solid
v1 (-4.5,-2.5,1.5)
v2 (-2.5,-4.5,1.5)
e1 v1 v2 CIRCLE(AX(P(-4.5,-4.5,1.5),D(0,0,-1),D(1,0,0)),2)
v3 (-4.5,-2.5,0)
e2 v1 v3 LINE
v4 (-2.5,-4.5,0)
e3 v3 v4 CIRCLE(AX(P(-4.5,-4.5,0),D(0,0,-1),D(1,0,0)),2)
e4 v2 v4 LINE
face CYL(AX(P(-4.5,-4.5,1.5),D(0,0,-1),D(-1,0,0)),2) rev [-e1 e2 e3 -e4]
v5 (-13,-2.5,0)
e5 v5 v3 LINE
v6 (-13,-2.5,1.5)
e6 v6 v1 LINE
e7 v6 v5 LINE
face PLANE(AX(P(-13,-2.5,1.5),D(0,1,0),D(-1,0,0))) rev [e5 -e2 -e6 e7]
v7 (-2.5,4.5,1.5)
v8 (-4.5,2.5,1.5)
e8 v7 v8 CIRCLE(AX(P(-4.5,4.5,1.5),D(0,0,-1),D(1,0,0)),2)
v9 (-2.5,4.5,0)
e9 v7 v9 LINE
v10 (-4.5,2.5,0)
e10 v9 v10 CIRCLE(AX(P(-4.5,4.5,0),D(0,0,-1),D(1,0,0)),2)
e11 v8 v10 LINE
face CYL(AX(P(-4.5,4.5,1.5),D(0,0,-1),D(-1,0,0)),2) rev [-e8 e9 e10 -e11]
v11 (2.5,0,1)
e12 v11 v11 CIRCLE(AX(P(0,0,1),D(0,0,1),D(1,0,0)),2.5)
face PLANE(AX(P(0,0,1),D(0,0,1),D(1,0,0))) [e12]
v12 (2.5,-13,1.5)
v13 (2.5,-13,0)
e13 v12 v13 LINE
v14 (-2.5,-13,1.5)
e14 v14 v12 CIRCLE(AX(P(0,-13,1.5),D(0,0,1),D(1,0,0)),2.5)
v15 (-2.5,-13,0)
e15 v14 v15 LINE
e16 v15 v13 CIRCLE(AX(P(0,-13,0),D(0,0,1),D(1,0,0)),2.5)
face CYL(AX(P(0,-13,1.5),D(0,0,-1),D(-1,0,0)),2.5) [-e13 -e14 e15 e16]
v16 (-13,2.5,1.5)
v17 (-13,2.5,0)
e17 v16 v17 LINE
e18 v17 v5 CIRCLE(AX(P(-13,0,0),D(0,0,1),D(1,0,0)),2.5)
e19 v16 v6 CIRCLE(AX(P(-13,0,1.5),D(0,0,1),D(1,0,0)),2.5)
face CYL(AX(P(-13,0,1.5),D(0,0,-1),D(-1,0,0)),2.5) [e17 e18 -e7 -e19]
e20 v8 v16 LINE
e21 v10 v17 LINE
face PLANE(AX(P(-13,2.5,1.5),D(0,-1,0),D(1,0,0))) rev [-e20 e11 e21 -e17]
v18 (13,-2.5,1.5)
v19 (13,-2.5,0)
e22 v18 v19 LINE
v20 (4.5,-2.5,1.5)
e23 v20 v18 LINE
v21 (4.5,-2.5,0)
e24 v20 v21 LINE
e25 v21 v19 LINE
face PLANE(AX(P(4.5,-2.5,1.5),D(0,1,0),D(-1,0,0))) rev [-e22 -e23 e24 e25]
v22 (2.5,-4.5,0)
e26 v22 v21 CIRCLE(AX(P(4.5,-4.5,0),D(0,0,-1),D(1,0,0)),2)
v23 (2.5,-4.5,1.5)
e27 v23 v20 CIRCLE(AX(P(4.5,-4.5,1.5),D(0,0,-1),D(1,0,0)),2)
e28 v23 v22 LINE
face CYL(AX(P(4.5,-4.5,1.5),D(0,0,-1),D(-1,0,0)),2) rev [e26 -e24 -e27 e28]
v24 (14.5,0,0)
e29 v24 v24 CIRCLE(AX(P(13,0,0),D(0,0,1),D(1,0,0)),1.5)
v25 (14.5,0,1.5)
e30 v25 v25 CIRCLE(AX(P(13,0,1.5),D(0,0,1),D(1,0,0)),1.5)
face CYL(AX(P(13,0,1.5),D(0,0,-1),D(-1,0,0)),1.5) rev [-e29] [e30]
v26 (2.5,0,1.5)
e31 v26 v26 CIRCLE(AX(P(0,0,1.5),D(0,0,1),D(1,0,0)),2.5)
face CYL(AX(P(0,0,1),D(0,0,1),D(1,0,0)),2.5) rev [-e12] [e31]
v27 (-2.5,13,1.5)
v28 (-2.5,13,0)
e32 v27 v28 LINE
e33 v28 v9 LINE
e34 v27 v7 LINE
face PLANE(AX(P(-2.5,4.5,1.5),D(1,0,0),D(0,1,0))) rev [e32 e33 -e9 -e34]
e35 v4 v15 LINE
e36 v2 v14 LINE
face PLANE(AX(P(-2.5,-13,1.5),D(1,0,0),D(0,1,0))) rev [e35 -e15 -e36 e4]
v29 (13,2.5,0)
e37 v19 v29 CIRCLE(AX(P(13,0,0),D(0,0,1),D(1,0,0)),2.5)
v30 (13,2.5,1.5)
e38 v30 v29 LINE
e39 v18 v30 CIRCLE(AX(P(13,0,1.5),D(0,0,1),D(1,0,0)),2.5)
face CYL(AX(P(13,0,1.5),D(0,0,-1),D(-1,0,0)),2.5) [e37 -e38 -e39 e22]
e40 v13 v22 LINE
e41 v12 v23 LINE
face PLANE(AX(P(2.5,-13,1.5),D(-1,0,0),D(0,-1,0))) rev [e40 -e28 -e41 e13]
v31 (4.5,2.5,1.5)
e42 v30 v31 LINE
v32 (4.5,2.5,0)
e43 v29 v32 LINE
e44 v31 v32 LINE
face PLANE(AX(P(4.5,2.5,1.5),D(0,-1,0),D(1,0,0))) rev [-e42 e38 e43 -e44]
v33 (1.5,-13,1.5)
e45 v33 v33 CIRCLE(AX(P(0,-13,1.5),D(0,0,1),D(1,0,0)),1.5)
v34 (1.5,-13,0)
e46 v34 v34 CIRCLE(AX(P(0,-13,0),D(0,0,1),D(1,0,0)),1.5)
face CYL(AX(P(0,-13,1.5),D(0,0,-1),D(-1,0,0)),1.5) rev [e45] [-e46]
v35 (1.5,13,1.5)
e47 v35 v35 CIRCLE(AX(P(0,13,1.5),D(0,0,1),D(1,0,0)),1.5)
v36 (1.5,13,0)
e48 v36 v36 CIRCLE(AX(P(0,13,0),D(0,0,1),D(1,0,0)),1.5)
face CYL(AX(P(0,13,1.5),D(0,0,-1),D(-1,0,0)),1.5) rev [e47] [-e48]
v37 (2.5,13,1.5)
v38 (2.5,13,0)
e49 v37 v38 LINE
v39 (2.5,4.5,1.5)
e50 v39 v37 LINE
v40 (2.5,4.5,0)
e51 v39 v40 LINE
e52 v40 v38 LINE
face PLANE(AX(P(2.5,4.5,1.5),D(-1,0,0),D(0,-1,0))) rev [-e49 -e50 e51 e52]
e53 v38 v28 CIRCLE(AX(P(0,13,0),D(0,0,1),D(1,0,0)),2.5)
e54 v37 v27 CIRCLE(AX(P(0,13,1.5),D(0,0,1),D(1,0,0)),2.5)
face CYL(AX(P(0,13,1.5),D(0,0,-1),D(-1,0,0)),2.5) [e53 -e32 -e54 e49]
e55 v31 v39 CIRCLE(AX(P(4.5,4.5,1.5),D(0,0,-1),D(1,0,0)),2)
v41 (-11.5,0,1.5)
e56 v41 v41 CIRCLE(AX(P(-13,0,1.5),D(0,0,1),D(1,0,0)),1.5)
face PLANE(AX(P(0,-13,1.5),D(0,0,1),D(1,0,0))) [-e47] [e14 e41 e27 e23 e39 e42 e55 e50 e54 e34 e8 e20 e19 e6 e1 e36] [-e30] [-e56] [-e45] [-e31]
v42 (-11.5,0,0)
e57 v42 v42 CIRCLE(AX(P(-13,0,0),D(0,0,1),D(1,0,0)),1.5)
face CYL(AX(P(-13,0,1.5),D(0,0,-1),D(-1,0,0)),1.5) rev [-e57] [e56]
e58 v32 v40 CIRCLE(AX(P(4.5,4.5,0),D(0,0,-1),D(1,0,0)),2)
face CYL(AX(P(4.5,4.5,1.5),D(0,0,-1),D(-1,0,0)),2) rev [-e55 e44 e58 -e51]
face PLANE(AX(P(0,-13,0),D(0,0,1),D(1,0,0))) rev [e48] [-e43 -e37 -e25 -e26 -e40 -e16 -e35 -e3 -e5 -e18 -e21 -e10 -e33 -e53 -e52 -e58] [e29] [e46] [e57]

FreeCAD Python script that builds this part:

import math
import FreeCAD as App
import Part
import Sketcher
Q = App.Units.Quantity

doc = App.newDocument("Part")
body = doc.addObject("PartDesign::Body", "Body")

sketch1 = body.newObject("Sketcher::SketchObject", "Sketch")
sketch1.AttachmentSupport = (doc.getObject("XY_Plane"), [""])
sketch1.MapMode = "FlatFace"
sketch1.addGeometry(Part.LineSegment(App.Vector(-2.5, -4.5, 0), App.Vector(-2.5, -13, 0)), False)
sketch1.addGeometry(Part.ArcOfCircle(Part.Circle(App.Vector(0, -13, 0), App.Vector(0, 0, 1), 2.5), math.radians(180), math.radians(360)), False)
sketch1.addGeometry(Part.LineSegment(App.Vector(2.5, -13, 0), App.Vector(2.5, -4.5, 0)), False)
sketch1.addGeometry(Part.ArcOfCircle(Part.Circle(App.Vector(4.5, -4.5, 0), App.Vector(0, 0, 1), 2), math.radians(90), math.radians(180)), False)
sketch1.addGeometry(Part.LineSegment(App.Vector(4.5, -2.5, 0), App.Vector(13, -2.5, 0)), False)
sketch1.addGeometry(Part.ArcOfCircle(Part.Circle(App.Vector(13, 0, 0), App.Vector(0, 0, 1), 2.5), math.radians(-90), math.radians(90)), False)
sketch1.addGeometry(Part.LineSegment(App.Vector(13, 2.5, 0), App.Vector(4.5, 2.5, 0)), False)
sketch1.addGeometry(Part.ArcOfCircle(Part.Circle(App.Vector(4.5, 4.5, 0), App.Vector(0, 0, 1), 2), math.radians(-180), math.radians(-90)), False)
sketch1.addGeometry(Part.LineSegment(App.Vector(2.5, 4.5, 0), App.Vector(2.5, 13, 0)), False)
sketch1.addGeometry(Part.ArcOfCircle(Part.Circle(App.Vector(0, 13, 0), App.Vector(0, 0, 1), 2.5), math.radians(0), math.radians(180)), False)
sketch1.addGeometry(Part.LineSegment(App.Vector(-2.5, 13, 0), App.Vector(-2.5, 4.5, 0)), False)
sketch1.addGeometry(Part.ArcOfCircle(Part.Circle(App.Vector(-4.5, 4.5, 0), App.Vector(0, 0, 1), 2), math.radians(-90), math.radians(0)), False)
sketch1.addGeometry(Part.LineSegment(App.Vector(-4.5, 2.5, 0), App.Vector(-13, 2.5, 0)), False)
sketch1.addGeometry(Part.ArcOfCircle(Part.Circle(App.Vector(-13, 0, 0), App.Vector(0, 0, 1), 2.5), math.radians(90), math.radians(270)), False)
sketch1.addGeometry(Part.LineSegment(App.Vector(-13, -2.5, 0), App.Vector(-4.5, -2.5, 0)), False)
sketch1.addGeometry(Part.ArcOfCircle(Part.Circle(App.Vector(-4.5, -4.5, 0), App.Vector(0, 0, 1), 2), math.radians(0), math.radians(90)), False)
sketch1.addGeometry(Part.Circle(App.Vector(0, -13, 0), App.Vector(0, 0, 1), 1.5), False)
sketch1.addGeometry(Part.Circle(App.Vector(13, 0, 0), App.Vector(0, 0, 1), 1.5), False)
sketch1.addGeometry(Part.Circle(App.Vector(-13, 0, 0), App.Vector(0, 0, 1), 1.5), False)
sketch1.addGeometry(Part.Circle(App.Vector(0, 13, 0), App.Vector(0, 0, 1), 1.5), False)
sketch1.addConstraint(Sketcher.Constraint("Tangent", 0, 2, 1, 1))
sketch1.addConstraint(Sketcher.Constraint("Tangent", 1, 2, 2, 1))
sketch1.addConstraint(Sketcher.Constraint("Tangent", 2, 2, 3, 2))
sketch1.addConstraint(Sketcher.Constraint("Tangent", 3, 1, 4, 1))
sketch1.addConstraint(Sketcher.Constraint("Tangent", 4, 2, 5, 1))
sketch1.addConstraint(Sketcher.Constraint("Tangent", 5, 2, 6, 1))
sketch1.addConstraint(Sketcher.Constraint("Tangent", 6, 2, 7, 2))
sketch1.addConstraint(Sketcher.Constraint("Tangent", 7, 1, 8, 1))
sketch1.addConstraint(Sketcher.Constraint("Tangent", 8, 2, 9, 1))
sketch1.addConstraint(Sketcher.Constraint("Tangent", 9, 2, 10, 1))
sketch1.addConstraint(Sketcher.Constraint("Tangent", 10, 2, 11, 2))
sketch1.addConstraint(Sketcher.Constraint("Tangent", 11, 1, 12, 1))
sketch1.addConstraint(Sketcher.Constraint("Tangent", 12, 2, 13, 1))
sketch1.addConstraint(Sketcher.Constraint("Tangent", 13, 2, 14, 1))
sketch1.addConstraint(Sketcher.Constraint("Tangent", 14, 2, 15, 2))
sketch1.addConstraint(Sketcher.Constraint("Tangent", 15, 1, 0, 1))
sketch1.addConstraint(Sketcher.Constraint("Vertical", 0))
sketch1.addConstraint(Sketcher.Constraint("Vertical", 2))
sketch1.addConstraint(Sketcher.Constraint("Horizontal", 4))
sketch1.addConstraint(Sketcher.Constraint("Horizontal", 6))
sketch1.addConstraint(Sketcher.Constraint("Vertical", 8))
sketch1.addConstraint(Sketcher.Constraint("Vertical", 10))
sketch1.addConstraint(Sketcher.Constraint("Horizontal", 12))
sketch1.addConstraint(Sketcher.Constraint("Horizontal", 14))
sketch1.addConstraint(Sketcher.Constraint("Coincident", 16, 3, 1, 3))
sketch1.addConstraint(Sketcher.Constraint("Coincident", 17, 3, 5, 3))
sketch1.addConstraint(Sketcher.Constraint("Coincident", 18, 3, 13, 3))
sketch1.addConstraint(Sketcher.Constraint("Coincident", 19, 3, 9, 3))
sketch1.addConstraint(Sketcher.Constraint("Equal", 1, 5))
sketch1.addConstraint(Sketcher.Constraint("Equal", 3, 7))
sketch1.addConstraint(Sketcher.Constraint("Equal", 5, 9))
sketch1.addConstraint(Sketcher.Constraint("Equal", 7, 11))
sketch1.addConstraint(Sketcher.Constraint("Equal", 9, 13))
sketch1.addConstraint(Sketcher.Constraint("Equal", 11, 15))
sketch1.addConstraint(Sketcher.Constraint("Equal", 16, 17))
sketch1.addConstraint(Sketcher.Constraint("Equal", 17, 18))
sketch1.addConstraint(Sketcher.Constraint("Equal", 18, 19))
sketch1.addConstraint(Sketcher.Constraint("Symmetric", 1, 3, 9, 3, -1, 1))
sketch1.addConstraint(Sketcher.Constraint("Symmetric", 5, 3, 13, 3, -1, 1))
sketch1.addConstraint(Sketcher.Constraint("Symmetric", 7, 3, 11, 3, -2))
sketch1.addConstraint(Sketcher.Constraint("Equal", 14, 0))
sketch1.addConstraint(Sketcher.Constraint("Diameter", 16, Q("3 mm")))
sketch1.addConstraint(Sketcher.Constraint("Radius", 3, Q("2 mm")))
sketch1.addConstraint(Sketcher.Constraint("Radius", 1, Q("2.5 mm")))
sketch1.addConstraint(Sketcher.Constraint("DistanceX", 4, 1, 4, 2, Q("8.5 mm")))
pad1 = body.newObject("PartDesign::Pad", "Pad")
pad1.Profile = sketch1
pad1.Length = 1.5

sketch2 = body.newObject("Sketcher::SketchObject", "Sketch001")
sketch2.AttachmentSupport = (doc.getObject("XY_Plane"), [""])
sketch2.MapMode = "FlatFace"
sketch2.AttachmentOffset = App.Placement(App.Vector(0, 0, 1.5), App.Rotation())
sketch2.addGeometry(Part.Circle(App.Vector(0, 0, 0), App.Vector(0, 0, 1), 2.5), False)
sketch2.addConstraint(Sketcher.Constraint("Coincident", 0, 3, -1, 1))
sketch2.addConstraint(Sketcher.Constraint("Diameter", 0, Q("5 mm")))
pocket1 = body.newObject("PartDesign::Pocket", "Pocket")
pocket1.Profile = sketch2
pocket1.Length = 0.5

doc.recompute()
